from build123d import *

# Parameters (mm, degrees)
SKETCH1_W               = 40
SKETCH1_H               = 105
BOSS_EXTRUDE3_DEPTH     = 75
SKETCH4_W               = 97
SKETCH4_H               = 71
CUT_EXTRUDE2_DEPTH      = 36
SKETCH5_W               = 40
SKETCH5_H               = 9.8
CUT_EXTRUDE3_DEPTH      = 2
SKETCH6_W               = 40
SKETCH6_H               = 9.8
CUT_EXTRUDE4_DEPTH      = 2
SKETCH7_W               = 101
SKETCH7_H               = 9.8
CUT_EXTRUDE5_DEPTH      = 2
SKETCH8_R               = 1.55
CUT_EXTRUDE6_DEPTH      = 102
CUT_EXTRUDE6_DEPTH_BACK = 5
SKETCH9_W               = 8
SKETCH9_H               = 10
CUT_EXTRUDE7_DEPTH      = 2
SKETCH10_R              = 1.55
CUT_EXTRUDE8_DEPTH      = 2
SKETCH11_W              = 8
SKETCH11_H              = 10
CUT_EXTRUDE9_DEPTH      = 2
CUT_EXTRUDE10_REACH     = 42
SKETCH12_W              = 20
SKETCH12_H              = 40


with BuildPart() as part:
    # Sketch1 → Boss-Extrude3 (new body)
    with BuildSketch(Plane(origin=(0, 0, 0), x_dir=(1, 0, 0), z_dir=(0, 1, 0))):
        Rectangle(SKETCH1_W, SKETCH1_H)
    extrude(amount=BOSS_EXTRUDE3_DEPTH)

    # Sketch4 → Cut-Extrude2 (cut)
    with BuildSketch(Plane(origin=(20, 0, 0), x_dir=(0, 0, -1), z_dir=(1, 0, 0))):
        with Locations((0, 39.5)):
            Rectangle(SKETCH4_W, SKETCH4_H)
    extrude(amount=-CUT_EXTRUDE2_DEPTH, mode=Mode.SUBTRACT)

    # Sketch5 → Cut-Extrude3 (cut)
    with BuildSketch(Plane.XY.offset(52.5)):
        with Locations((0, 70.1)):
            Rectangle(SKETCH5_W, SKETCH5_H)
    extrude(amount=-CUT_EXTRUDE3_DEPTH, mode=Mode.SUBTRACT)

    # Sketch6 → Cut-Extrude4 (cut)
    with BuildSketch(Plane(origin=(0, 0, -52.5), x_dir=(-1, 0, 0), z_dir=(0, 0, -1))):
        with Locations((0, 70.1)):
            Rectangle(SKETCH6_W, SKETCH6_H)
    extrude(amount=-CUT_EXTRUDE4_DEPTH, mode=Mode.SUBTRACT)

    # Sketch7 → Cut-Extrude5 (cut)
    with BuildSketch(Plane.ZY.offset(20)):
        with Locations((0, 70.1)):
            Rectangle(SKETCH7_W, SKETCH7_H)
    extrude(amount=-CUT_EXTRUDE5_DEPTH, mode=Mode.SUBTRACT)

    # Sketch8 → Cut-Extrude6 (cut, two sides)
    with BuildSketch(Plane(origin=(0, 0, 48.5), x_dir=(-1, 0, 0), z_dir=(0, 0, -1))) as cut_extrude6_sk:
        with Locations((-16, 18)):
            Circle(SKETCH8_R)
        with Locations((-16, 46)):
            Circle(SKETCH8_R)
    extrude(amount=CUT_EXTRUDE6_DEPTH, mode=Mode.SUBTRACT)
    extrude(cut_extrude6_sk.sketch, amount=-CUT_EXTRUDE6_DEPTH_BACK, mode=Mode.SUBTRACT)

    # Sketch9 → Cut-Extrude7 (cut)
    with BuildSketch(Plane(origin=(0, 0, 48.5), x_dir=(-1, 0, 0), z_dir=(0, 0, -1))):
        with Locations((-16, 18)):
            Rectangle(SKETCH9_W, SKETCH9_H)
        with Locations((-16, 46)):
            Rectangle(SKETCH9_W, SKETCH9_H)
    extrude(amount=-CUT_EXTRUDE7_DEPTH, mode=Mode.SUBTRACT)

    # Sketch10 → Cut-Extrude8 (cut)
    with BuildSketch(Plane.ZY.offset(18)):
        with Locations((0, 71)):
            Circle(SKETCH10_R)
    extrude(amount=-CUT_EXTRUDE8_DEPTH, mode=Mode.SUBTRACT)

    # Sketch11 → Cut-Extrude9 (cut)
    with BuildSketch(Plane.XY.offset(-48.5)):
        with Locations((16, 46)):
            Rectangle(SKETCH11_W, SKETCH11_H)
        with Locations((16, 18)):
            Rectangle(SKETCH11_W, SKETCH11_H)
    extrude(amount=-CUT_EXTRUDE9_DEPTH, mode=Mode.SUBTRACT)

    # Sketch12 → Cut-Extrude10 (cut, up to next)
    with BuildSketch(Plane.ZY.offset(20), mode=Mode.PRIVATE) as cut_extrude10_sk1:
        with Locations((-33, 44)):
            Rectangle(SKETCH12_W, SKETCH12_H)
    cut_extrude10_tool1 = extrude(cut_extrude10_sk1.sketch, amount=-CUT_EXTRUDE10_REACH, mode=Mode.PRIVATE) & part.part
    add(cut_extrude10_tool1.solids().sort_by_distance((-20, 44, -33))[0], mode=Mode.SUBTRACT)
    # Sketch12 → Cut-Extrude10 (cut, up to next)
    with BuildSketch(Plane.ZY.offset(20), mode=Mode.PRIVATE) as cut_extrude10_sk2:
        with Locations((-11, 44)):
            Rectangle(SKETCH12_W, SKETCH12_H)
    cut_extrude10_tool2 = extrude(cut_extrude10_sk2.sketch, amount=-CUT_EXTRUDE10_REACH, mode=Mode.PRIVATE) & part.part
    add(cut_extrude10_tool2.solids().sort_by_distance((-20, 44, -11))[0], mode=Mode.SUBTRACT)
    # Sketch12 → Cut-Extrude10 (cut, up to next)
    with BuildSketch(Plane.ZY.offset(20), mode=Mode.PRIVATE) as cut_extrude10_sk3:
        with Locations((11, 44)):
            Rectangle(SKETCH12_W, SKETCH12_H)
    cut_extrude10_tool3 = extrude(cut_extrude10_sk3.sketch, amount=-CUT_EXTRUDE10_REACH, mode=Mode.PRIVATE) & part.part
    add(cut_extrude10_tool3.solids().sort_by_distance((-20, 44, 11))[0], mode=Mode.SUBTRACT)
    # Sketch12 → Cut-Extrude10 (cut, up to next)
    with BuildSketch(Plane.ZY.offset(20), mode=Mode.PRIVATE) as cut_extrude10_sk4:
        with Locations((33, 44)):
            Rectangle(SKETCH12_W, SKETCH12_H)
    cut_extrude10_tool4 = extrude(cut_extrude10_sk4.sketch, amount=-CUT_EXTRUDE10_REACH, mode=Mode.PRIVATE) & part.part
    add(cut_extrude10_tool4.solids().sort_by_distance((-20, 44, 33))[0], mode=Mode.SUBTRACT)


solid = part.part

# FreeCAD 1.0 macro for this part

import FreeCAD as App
import Part
import Sketcher
from FreeCAD import Vector
Q = App.Units.Quantity

doc = App.newDocument("Part")
body = doc.addObject("PartDesign::Body", "Body")

sketch1 = body.newObject("Sketcher::SketchObject", "Sketch")
sketch1.AttachmentSupport = (doc.getObject("XZ_Plane"), [""])
sketch1.MapMode = "FlatFace"
sketch1.addGeometry(Part.LineSegment(Vector(-20, -52, 0), Vector(-20, 52, 0)), False)
sketch1.addGeometry(Part.LineSegment(Vector(-20, 52, 0), Vector(20, 52, 0)), False)
sketch1.addGeometry(Part.LineSegment(Vector(20, 52, 0), Vector(20, -52, 0)), False)
sketch1.addGeometry(Part.LineSegment(Vector(20, -52, 0), Vector(-20, -52, 0)), False)
sketch1.addConstraint(Sketcher.Constraint("Coincident", 0, 2, 1, 1))
sketch1.addConstraint(Sketcher.Constraint("Coincident", 1, 2, 2, 1))
sketch1.addConstraint(Sketcher.Constraint("Coincident", 2, 2, 3, 1))
sketch1.addConstraint(Sketcher.Constraint("Coincident", 3, 2, 0, 1))
sketch1.addConstraint(Sketcher.Constraint("Vertical", 0))
sketch1.addConstraint(Sketcher.Constraint("Horizontal", 1))
sketch1.addConstraint(Sketcher.Constraint("Vertical", 2))
sketch1.addConstraint(Sketcher.Constraint("Horizontal", 3))
sketch1.addConstraint(Sketcher.Constraint("Symmetric", 0, 2, 2, 2, -1, 1))
sketch1.addConstraint(Sketcher.Constraint("DistanceX", 1, 1, 1, 2, Q("40 mm")))
sketch1.addConstraint(Sketcher.Constraint("DistanceY", 0, 1, 0, 2, Q("105 mm")))
pad1 = body.newObject("PartDesign::Pad", "Pad")
pad1.Profile = sketch1
pad1.Length = 75
pad1.Reversed = True

sketch2 = body.newObject("Sketcher::SketchObject", "Sketch001")
sketch2.AttachmentSupport = (doc.getObject("YZ_Plane"), [""])
sketch2.MapMode = "FlatFace"
sketch2.AttachmentOffset = App.Placement(Vector(0, 0, 20), App.Rotation())
sketch2.addGeometry(Part.LineSegment(Vector(75, 48, 0), Vector(4, 48, 0)), False)
sketch2.addGeometry(Part.LineSegment(Vector(4, 48, 0), Vector(4, -48, 0)), False)
sketch2.addGeometry(Part.LineSegment(Vector(4, -48, 0), Vector(75, -48, 0)), False)
sketch2.addGeometry(Part.LineSegment(Vector(75, -48, 0), Vector(75, 48, 0)), False)
sketch2.addConstraint(Sketcher.Constraint("Coincident", 0, 2, 1, 1))
sketch2.addConstraint(Sketcher.Constraint("Coincident", 1, 2, 2, 1))
sketch2.addConstraint(Sketcher.Constraint("Coincident", 2, 2, 3, 1))
sketch2.addConstraint(Sketcher.Constraint("Coincident", 3, 2, 0, 1))
sketch2.addConstraint(Sketcher.Constraint("Horizontal", 0))
sketch2.addConstraint(Sketcher.Constraint("Vertical", 1))
sketch2.addConstraint(Sketcher.Constraint("Horizontal", 2))
sketch2.addConstraint(Sketcher.Constraint("Vertical", 3))
sketch2.addConstraint(Sketcher.Constraint("DistanceX", 0, 2, 0, 1, Q("71 mm")))
sketch2.addConstraint(Sketcher.Constraint("DistanceY", 1, 2, 1, 1, Q("97 mm")))
sketch2.addConstraint(Sketcher.Constraint("DistanceX", -1, 1, 0, 2, Q("4 mm")))
sketch2.addConstraint(Sketcher.Constraint("DistanceY", -1, 1, 0, 2, Q("48.5 mm")))
pocket1 = body.newObject("PartDesign::Pocket", "Pocket")
pocket1.Profile = sketch2
pocket1.Length = 36

sketch3 = body.newObject("Sketcher::SketchObject", "Sketch002")
sketch3.AttachmentSupport = (doc.getObject("XY_Plane"), [""])
sketch3.MapMode = "FlatFace"
sketch3.AttachmentOffset = App.Placement(Vector(0, 0, 52.5), App.Rotation())
sketch3.addGeometry(Part.LineSegment(Vector(-20, 75, 0), Vector(-20, 65, 0)), False)
sketch3.addGeometry(Part.LineSegment(Vector(-20, 65, 0), Vector(20, 65, 0)), False)
sketch3.addGeometry(Part.LineSegment(Vector(20, 65, 0), Vector(20, 75, 0)), False)
sketch3.addGeometry(Part.LineSegment(Vector(20, 75, 0), Vector(-20, 75, 0)), False)
sketch3.addConstraint(Sketcher.Constraint("Coincident", 0, 2, 1, 1))
sketch3.addConstraint(Sketcher.Constraint("Coincident", 1, 2, 2, 1))
sketch3.addConstraint(Sketcher.Constraint("Coincident", 2, 2, 3, 1))
sketch3.addConstraint(Sketcher.Constraint("Coincident", 3, 2, 0, 1))
sketch3.addConstraint(Sketcher.Constraint("Vertical", 0))
sketch3.addConstraint(Sketcher.Constraint("Horizontal", 1))
sketch3.addConstraint(Sketcher.Constraint("Vertical", 2))
sketch3.addConstraint(Sketcher.Constraint("Horizontal", 3))
sketch3.addConstraint(Sketcher.Constraint("DistanceX", 1, 1, 1, 2, Q("40 mm")))
sketch3.addConstraint(Sketcher.Constraint("DistanceY", 0, 2, 0, 1, Q("9.8 mm")))
sketch3.addConstraint(Sketcher.Constraint("DistanceX", 0, 2, -1, 1, Q("20 mm")))
sketch3.addConstraint(Sketcher.Constraint("DistanceY", -1, 1, 2, 2, Q("75 mm")))
pocket2 = body.newObject("PartDesign::Pocket", "Pocket001")
pocket2.Profile = sketch3
pocket2.Length = 2

sketch4 = body.newObject("Sketcher::SketchObject", "Sketch003")
sketch4.AttachmentSupport = (doc.getObject("XY_Plane"), [""])
sketch4.MapMode = "FlatFace"
sketch4.AttachmentOffset = App.Placement(Vector(0, 0, -52.5), App.Rotation())
sketch4.addGeometry(Part.LineSegment(Vector(20, 75, 0), Vector(20, 65, 0)), False)
sketch4.addGeometry(Part.LineSegment(Vector(20, 65, 0), Vector(-20, 65, 0)), False)
sketch4.addGeometry(Part.LineSegment(Vector(-20, 65, 0), Vector(-20, 75, 0)), False)
sketch4.addGeometry(Part.LineSegment(Vector(-20, 75, 0), Vector(20, 75, 0)), False)
sketch4.addConstraint(Sketcher.Constraint("Coincident", 0, 2, 1, 1))
sketch4.addConstraint(Sketcher.Constraint("Coincident", 1, 2, 2, 1))
sketch4.addConstraint(Sketcher.Constraint("Coincident", 2, 2, 3, 1))
sketch4.addConstraint(Sketcher.Constraint("Coincident", 3, 2, 0, 1))
sketch4.addConstraint(Sketcher.Constraint("Vertical", 0))
sketch4.addConstraint(Sketcher.Constraint("Horizontal", 1))
sketch4.addConstraint(Sketcher.Constraint("Vertical", 2))
sketch4.addConstraint(Sketcher.Constraint("Horizontal", 3))
sketch4.addConstraint(Sketcher.Constraint("DistanceX", 1, 2, 1, 1, Q("40 mm")))
sketch4.addConstraint(Sketcher.Constraint("DistanceY", 0, 2, 0, 1, Q("9.8 mm")))
sketch4.addConstraint(Sketcher.Constraint("DistanceX", -1, 1, 0, 2, Q("20 mm")))
sketch4.addConstraint(Sketcher.Constraint("DistanceY", -1, 1, 2, 2, Q("75 mm")))
pocket3 = body.newObject("PartDesign::Pocket", "Pocket002")
pocket3.Profile = sketch4
pocket3.Length = 2
pocket3.Reversed = True

sketch5 = body.newObject("Sketcher::SketchObject", "Sketch004")
sketch5.AttachmentSupport = (doc.getObject("YZ_Plane"), [""])
sketch5.MapMode = "FlatFace"
sketch5.AttachmentOffset = App.Placement(Vector(0, 0, -20), App.Rotation())
sketch5.addGeometry(Part.LineSegment(Vector(75, -50, 0), Vector(65, -50, 0)), False)
sketch5.addGeometry(Part.LineSegment(Vector(65, -50, 0), Vector(65, 50, 0)), False)
sketch5.addGeometry(Part.LineSegment(Vector(65, 50, 0), Vector(75, 50, 0)), False)
sketch5.addGeometry(Part.LineSegment(Vector(75, 50, 0), Vector(75, -50, 0)), False)
sketch5.addConstraint(Sketcher.Constraint("Coincident", 0, 2, 1, 1))
sketch5.addConstraint(Sketcher.Constraint("Coincident", 1, 2, 2, 1))
sketch5.addConstraint(Sketcher.Constraint("Coincident", 2, 2, 3, 1))
sketch5.addConstraint(Sketcher.Constraint("Coincident", 3, 2, 0, 1))
sketch5.addConstraint(Sketcher.Constraint("Horizontal", 0))
sketch5.addConstraint(Sketcher.Constraint("Vertical", 1))
sketch5.addConstraint(Sketcher.Constraint("Horizontal", 2))
sketch5.addConstraint(Sketcher.Constraint("Vertical", 3))
sketch5.addConstraint(Sketcher.Constraint("DistanceY", 1, 1, 1, 2, Q("101 mm")))
sketch5.addConstraint(Sketcher.Constraint("DistanceX", 0, 2, 0, 1, Q("9.8 mm")))
sketch5.addConstraint(Sketcher.Constraint("DistanceX", -1, 1, 2, 2, Q("75 mm")))
sketch5.addConstraint(Sketcher.Constraint("DistanceY", 0, 2, -1, 1, Q("50.5 mm")))
pocket4 = body.newObject("PartDesign::Pocket", "Pocket003")
pocket4.Profile = sketch5
pocket4.Length = 2
pocket4.Reversed = True

sketch6 = body.newObject("Sketcher::SketchObject", "Sketch005")
sketch6.AttachmentSupport = (doc.getObject("XY_Plane"), [""])
sketch6.MapMode = "FlatFace"
sketch6.AttachmentOffset = App.Placement(Vector(0, 0, 48.5), App.Rotation())
sketch6.addGeometry(Part.Circle(Vector(16, 18, 0), Vector(0, 0, 1), 1.6), False)
sketch6.addGeometry(Part.Circle(Vector(16, 46, 0), Vector(0, 0, 1), 1.6), False)
sketch6.addConstraint(Sketcher.Constraint("Equal", 0, 1))
sketch6.addConstraint(Sketcher.Constraint("Vertical", 0, 3, 1, 3))
sketch6.addConstraint(Sketcher.Constraint("Diameter", 0, Q("3.1 mm")))
sketch6.addConstraint(Sketcher.Constraint("DistanceX", -1, 1, 0, 3, Q("16 mm")))
sketch6.addConstraint(Sketcher.Constraint("DistanceY", -1, 1, 0, 3, Q("18 mm")))
sketch6.addConstraint(Sketcher.Constraint("DistanceY", -1, 1, 1, 3, Q("46 mm")))
pocket5 = body.newObject("PartDesign::Pocket", "Pocket004")
pocket5.Profile = sketch6
pocket5.Type = "ThroughAll"
pocket5.Midplane = True

sketch7 = body.newObject("Sketcher::SketchObject", "Sketch006")
sketch7.AttachmentSupport = (doc.getObject("XY_Plane"), [""])
sketch7.MapMode = "FlatFace"
sketch7.AttachmentOffset = App.Placement(Vector(0, 0, 48.5), App.Rotation())
sketch7.addGeometry(Part.LineSegment(Vector(20, 23, 0), Vector(20, 13, 0)), False)
sketch7.addGeometry(Part.LineSegment(Vector(20, 13, 0), Vector(12, 13, 0)), False)
sketch7.addGeometry(Part.LineSegment(Vector(12, 13, 0), Vector(12, 23, 0)), False)
sketch7.addGeometry(Part.LineSegment(Vector(12, 23, 0), Vector(20, 23, 0)), False)
sketch7.addGeometry(Part.LineSegment(Vector(20, 51, 0), Vector(20, 41, 0)), False)
sketch7.addGeometry(Part.LineSegment(Vector(20, 41, 0), Vector(12, 41, 0)), False)
sketch7.addGeometry(Part.LineSegment(Vector(12, 41, 0), Vector(12, 51, 0)), False)
sketch7.addGeometry(Part.LineSegment(Vector(12, 51, 0), Vector(20, 51, 0)), False)
sketch7.addConstraint(Sketcher.Constraint("Coincident", 0, 2, 1, 1))
sketch7.addConstraint(Sketcher.Constraint("Coincident", 1, 2, 2, 1))
sketch7.addConstraint(Sketcher.Constraint("Coincident", 2, 2, 3, 1))
sketch7.addConstraint(Sketcher.Constraint("Coincident", 3, 2, 0, 1))
sketch7.addConstraint(Sketcher.Constraint("Coincident", 4, 2, 5, 1))
sketch7.addConstraint(Sketcher.Constraint("Coincident", 5, 2, 6, 1))
sketch7.addConstraint(Sketcher.Constraint("Coincident", 6, 2, 7, 1))
sketch7.addConstraint(Sketcher.Constraint("Coincident", 7, 2, 4, 1))
sketch7.addConstraint(Sketcher.Constraint("Vertical", 0))
sketch7.addConstraint(Sketcher.Constraint("Horizontal", 1))
sketch7.addConstraint(Sketcher.Constraint("Vertical", 2))
sketch7.addConstraint(Sketcher.Constraint("Horizontal", 3))
sketch7.addConstraint(Sketcher.Constraint("Vertical", 4))
sketch7.addConstraint(Sketcher.Constraint("Horizontal", 5))
sketch7.addConstraint(Sketcher.Constraint("Vertical", 6))
sketch7.addConstraint(Sketcher.Constraint("Horizontal", 7))
sketch7.addConstraint(Sketcher.Constraint("Vertical", 3, 2, 4, 2))
sketch7.addConstraint(Sketcher.Constraint("Vertical", 2, 2, 5, 2))
sketch7.addConstraint(Sketcher.Constraint("Equal", 2, 4))
sketch7.addConstraint(Sketcher.Constraint("DistanceX", 1, 2, 1, 1, Q("8 mm")))
sketch7.addConstraint(Sketcher.Constraint("DistanceY", 0, 2, 0, 1, Q("10 mm")))
sketch7.addConstraint(Sketcher.Constraint("DistanceX", -1, 1, 0, 2, Q("20 mm")))
sketch7.addConstraint(Sketcher.Constraint("DistanceY", -1, 1, 0, 2, Q("13 mm")))
sketch7.addConstraint(Sketcher.Constraint("DistanceY", -1, 1, 4, 2, Q("41 mm")))
pocket6 = body.newObject("PartDesign::Pocket", "Pocket005")
pocket6.Profile = sketch7
pocket6.Length = 2
pocket6.Reversed = True

sketch8 = body.newObject("Sketcher::SketchObject", "Sketch007")
sketch8.AttachmentSupport = (doc.getObject("YZ_Plane"), [""])
sketch8.MapMode = "FlatFace"
sketch8.AttachmentOffset = App.Placement(Vector(0, 0, -18), App.Rotation())
sketch8.addGeometry(Part.Circle(Vector(71, 0, 0), Vector(0, 0, 1), 1.6), False)
sketch8.addConstraint(Sketcher.Constraint("PointOnObject", 0, 3, -1))
sketch8.addConstraint(Sketcher.Constraint("Diameter", 0, Q("3.1 mm")))
sketch8.addConstraint(Sketcher.Constraint("DistanceX", -1, 1, 0, 3, Q("71 mm")))
pocket7 = body.newObject("PartDesign::Pocket", "Pocket006")
pocket7.Profile = sketch8
pocket7.Length = 2
pocket7.Reversed = True

sketch9 = body.newObject("Sketcher::SketchObject", "Sketch008")
sketch9.AttachmentSupport = (doc.getObject("XY_Plane"), [""])
sketch9.MapMode = "FlatFace"
sketch9.AttachmentOffset = App.Placement(Vector(0, 0, -48.5), App.Rotation())
sketch9.addGeometry(Part.LineSegment(Vector(12, 51, 0), Vector(12, 41, 0)), False)
sketch9.addGeometry(Part.LineSegment(Vector(12, 41, 0), Vector(20, 41, 0)), False)
sketch9.addGeometry(Part.LineSegment(Vector(20, 41, 0), Vector(20, 51, 0)), False)
sketch9.addGeometry(Part.LineSegment(Vector(20, 51, 0), Vector(12, 51, 0)), False)
sketch9.addGeometry(Part.LineSegment(Vector(12, 23, 0), Vector(12, 13, 0)), False)
sketch9.addGeometry(Part.LineSegment(Vector(12, 13, 0), Vector(20, 13, 0)), False)
sketch9.addGeometry(Part.LineSegment(Vector(20, 13, 0), Vector(20, 23, 0)), False)
sketch9.addGeometry(Part.LineSegment(Vector(20, 23, 0), Vector(12, 23, 0)), False)
sketch9.addConstraint(Sketcher.Constraint("Coincident", 0, 2, 1, 1))
sketch9.addConstraint(Sketcher.Constraint("Coincident", 1, 2, 2, 1))
sketch9.addConstraint(Sketcher.Constraint("Coincident", 2, 2, 3, 1))
sketch9.addConstraint(Sketcher.Constraint("Coincident", 3, 2, 0, 1))
sketch9.addConstraint(Sketcher.Constraint("Coincident", 4, 2, 5, 1))
sketch9.addConstraint(Sketcher.Constraint("Coincident", 5, 2, 6, 1))
sketch9.addConstraint(Sketcher.Constraint("Coincident", 6, 2, 7, 1))
sketch9.addConstraint(Sketcher.Constraint("Coincident", 7, 2, 4, 1))
sketch9.addConstraint(Sketcher.Constraint("Vertical", 0))
sketch9.addConstraint(Sketcher.Constraint("Horizontal", 1))
sketch9.addConstraint(Sketcher.Constraint("Vertical", 2))
sketch9.addConstraint(Sketcher.Constraint("Horizontal", 3))
sketch9.addConstraint(Sketcher.Constraint("Vertical", 4))
sketch9.addConstraint(Sketcher.Constraint("Horizontal", 5))
sketch9.addConstraint(Sketcher.Constraint("Vertical", 6))
sketch9.addConstraint(Sketcher.Constraint("Horizontal", 7))
sketch9.addConstraint(Sketcher.Constraint("Vertical", 3, 2, 4, 2))
sketch9.addConstraint(Sketcher.Constraint("Vertical", 2, 2, 5, 2))
sketch9.addConstraint(Sketcher.Constraint("Equal", 2, 4))
sketch9.addConstraint(Sketcher.Constraint("DistanceX", 1, 1, 1, 2, Q("8 mm")))
sketch9.addConstraint(Sketcher.Constraint("DistanceY", 0, 2, 0, 1, Q("10 mm")))
sketch9.addConstraint(Sketcher.Constraint("DistanceX", -1, 1, 0, 2, Q("12 mm")))
sketch9.addConstraint(Sketcher.Constraint("DistanceY", -1, 1, 0, 2, Q("41 mm")))
sketch9.addConstraint(Sketcher.Constraint("DistanceY", -1, 1, 4, 2, Q("13 mm")))
pocket8 = body.newObject("PartDesign::Pocket", "Pocket007")
pocket8.Profile = sketch9
pocket8.Length = 2

sketch10 = body.newObject("Sketcher::SketchObject", "Sketch009")
sketch10.AttachmentSupport = (doc.getObject("YZ_Plane"), [""])
sketch10.MapMode = "FlatFace"
sketch10.AttachmentOffset = App.Placement(Vector(0, 0, -20), App.Rotation())
sketch10.addGeometry(Part.LineSegment(Vector(64, -43, 0), Vector(24, -43, 0)), False)
sketch10.addGeometry(Part.LineSegment(Vector(24, -43, 0), Vector(24, -23, 0)), False)
sketch10.addGeometry(Part.LineSegment(Vector(24, -23, 0), Vector(64, -23, 0)), False)
sketch10.addGeometry(Part.LineSegment(Vector(64, -23, 0), Vector(64, -43, 0)), False)
sketch10.addConstraint(Sketcher.Constraint("Coincident", 0, 2, 1, 1))
sketch10.addConstraint(Sketcher.Constraint("Coincident", 1, 2, 2, 1))
sketch10.addConstraint(Sketcher.Constraint("Coincident", 2, 2, 3, 1))
sketch10.addConstraint(Sketcher.Constraint("Coincident", 3, 2, 0, 1))
sketch10.addConstraint(Sketcher.Constraint("Horizontal", 0))
sketch10.addConstraint(Sketcher.Constraint("Vertical", 1))
sketch10.addConstraint(Sketcher.Constraint("Horizontal", 2))
sketch10.addConstraint(Sketcher.Constraint("Vertical", 3))
sketch10.addConstraint(Sketcher.Constraint("DistanceX", 0, 2, 0, 1, Q("40 mm")))
sketch10.addConstraint(Sketcher.Constraint("DistanceY", 1, 1, 1, 2, Q("20 mm")))
sketch10.addConstraint(Sketcher.Constraint("DistanceX", -1, 1, 0, 2, Q("24 mm")))
sketch10.addConstraint(Sketcher.Constraint("DistanceY", 0, 2, -1, 1, Q("43 mm")))
pocket9 = body.newObject("PartDesign::Pocket", "Pocket008")
pocket9.Profile = sketch10
pocket9.Type = "UpToFirst"
pocket9.Reversed = True

sketch11 = body.newObject("Sketcher::SketchObject", "Sketch010")
sketch11.AttachmentSupport = (doc.getObject("YZ_Plane"), [""])
sketch11.MapMode = "FlatFace"
sketch11.AttachmentOffset = App.Placement(Vector(0, 0, -20), App.Rotation())
sketch11.addGeometry(Part.LineSegment(Vector(64, -21, 0), Vector(24, -21, 0)), False)
sketch11.addGeometry(Part.LineSegment(Vector(24, -21, 0), Vector(24, -1, 0)), False)
sketch11.addGeometry(Part.LineSegment(Vector(24, -1, 0), Vector(64, -1, 0)), False)
sketch11.addGeometry(Part.LineSegment(Vector(64, -1, 0), Vector(64, -21, 0)), False)
sketch11.addConstraint(Sketcher.Constraint("Coincident", 0, 2, 1, 1))
sketch11.addConstraint(Sketcher.Constraint("Coincident", 1, 2, 2, 1))
sketch11.addConstraint(Sketcher.Constraint("Coincident", 2, 2, 3, 1))
sketch11.addConstraint(Sketcher.Constraint("Coincident", 3, 2, 0, 1))
sketch11.addConstraint(Sketcher.Constraint("Horizontal", 0))
sketch11.addConstraint(Sketcher.Constraint("Vertical", 1))
sketch11.addConstraint(Sketcher.Constraint("Horizontal", 2))
sketch11.addConstraint(Sketcher.Constraint("Vertical", 3))
sketch11.addConstraint(Sketcher.Constraint("DistanceX", 0, 2, 0, 1, Q("40 mm")))
sketch11.addConstraint(Sketcher.Constraint("DistanceY", 1, 1, 1, 2, Q("20 mm")))
sketch11.addConstraint(Sketcher.Constraint("DistanceX", -1, 1, 0, 2, Q("24 mm")))
sketch11.addConstraint(Sketcher.Constraint("DistanceY", 0, 2, -1, 1, Q("21 mm")))
pocket10 = body.newObject("PartDesign::Pocket", "Pocket009")
pocket10.Profile = sketch11
pocket10.Type = "UpToFirst"
pocket10.Reversed = True

sketch12 = body.newObject("Sketcher::SketchObject", "Sketch011")
sketch12.AttachmentSupport = (doc.getObject("YZ_Plane"), [""])
sketch12.MapMode = "FlatFace"
sketch12.AttachmentOffset = App.Placement(Vector(0, 0, -20), App.Rotation())
sketch12.addGeometry(Part.LineSegment(Vector(64, 1, 0), Vector(24, 1, 0)), False)
sketch12.addGeometry(Part.LineSegment(Vector(24, 1, 0), Vector(24, 21, 0)), False)
sketch12.addGeometry(Part.LineSegment(Vector(24, 21, 0), Vector(64, 21, 0)), False)
sketch12.addGeometry(Part.LineSegment(Vector(64, 21, 0), Vector(64, 1, 0)), False)
sketch12.addConstraint(Sketcher.Constraint("Coincident", 0, 2, 1, 1))
sketch12.addConstraint(Sketcher.Constraint("Coincident", 1, 2, 2, 1))
sketch12.addConstraint(Sketcher.Constraint("Coincident", 2, 2, 3, 1))
sketch12.addConstraint(Sketcher.Constraint("Coincident", 3, 2, 0, 1))
sketch12.addConstraint(Sketcher.Constraint("Horizontal", 0))
sketch12.addConstraint(Sketcher.Constraint("Vertical", 1))
sketch12.addConstraint(Sketcher.Constraint("Horizontal", 2))
sketch12.addConstraint(Sketcher.Constraint("Vertical", 3))
sketch12.addConstraint(Sketcher.Constraint("DistanceX", 0, 2, 0, 1, Q("40 mm")))
sketch12.addConstraint(Sketcher.Constraint("DistanceY", 1, 1, 1, 2, Q("20 mm")))
sketch12.addConstraint(Sketcher.Constraint("DistanceX", -1, 1, 0, 2, Q("24 mm")))
sketch12.addConstraint(Sketcher.Constraint("DistanceY", -1, 1, 0, 2, Q("1 mm")))
pocket11 = body.newObject("PartDesign::Pocket", "Pocket010")
pocket11.Profile = sketch12
pocket11.Type = "UpToFirst"
pocket11.Reversed = True

sketch13 = body.newObject("Sketcher::SketchObject", "Sketch012")
sketch13.AttachmentSupport = (doc.getObject("YZ_Plane"), [""])
sketch13.MapMode = "FlatFace"
sketch13.AttachmentOffset = App.Placement(Vector(0, 0, -20), App.Rotation())
sketch13.addGeometry(Part.LineSegment(Vector(64, 23, 0), Vector(24, 23, 0)), False)
sketch13.addGeometry(Part.LineSegment(Vector(24, 23, 0), Vector(24, 43, 0)), False)
sketch13.addGeometry(Part.LineSegment(Vector(24, 43, 0), Vector(64, 43, 0)), False)
sketch13.addGeometry(Part.LineSegment(Vector(64, 43, 0), Vector(64, 23, 0)), False)
sketch13.addConstraint(Sketcher.Constraint("Coincident", 0, 2, 1, 1))
sketch13.addConstraint(Sketcher.Constraint("Coincident", 1, 2, 2, 1))
sketch13.addConstraint(Sketcher.Constraint("Coincident", 2, 2, 3, 1))
sketch13.addConstraint(Sketcher.Constraint("Coincident", 3, 2, 0, 1))
sketch13.addConstraint(Sketcher.Constraint("Horizontal", 0))
sketch13.addConstraint(Sketcher.Constraint("Vertical", 1))
sketch13.addConstraint(Sketcher.Constraint("Horizontal", 2))
sketch13.addConstraint(Sketcher.Constraint("Vertical", 3))
sketch13.addConstraint(Sketcher.Constraint("DistanceX", 0, 2, 0, 1, Q("40 mm")))
sketch13.addConstraint(Sketcher.Constraint("DistanceY", 1, 1, 1, 2, Q("20 mm")))
sketch13.addConstraint(Sketcher.Constraint("DistanceX", -1, 1, 0, 2, Q("24 mm")))
sketch13.addConstraint(Sketcher.Constraint("DistanceY", -1, 1, 0, 2, Q("23 mm")))
pocket12 = body.newObject("PartDesign::Pocket", "Pocket011")
pocket12.Profile = sketch13
pocket12.Type = "UpToFirst"
pocket12.Reversed = True

doc.recompute()
